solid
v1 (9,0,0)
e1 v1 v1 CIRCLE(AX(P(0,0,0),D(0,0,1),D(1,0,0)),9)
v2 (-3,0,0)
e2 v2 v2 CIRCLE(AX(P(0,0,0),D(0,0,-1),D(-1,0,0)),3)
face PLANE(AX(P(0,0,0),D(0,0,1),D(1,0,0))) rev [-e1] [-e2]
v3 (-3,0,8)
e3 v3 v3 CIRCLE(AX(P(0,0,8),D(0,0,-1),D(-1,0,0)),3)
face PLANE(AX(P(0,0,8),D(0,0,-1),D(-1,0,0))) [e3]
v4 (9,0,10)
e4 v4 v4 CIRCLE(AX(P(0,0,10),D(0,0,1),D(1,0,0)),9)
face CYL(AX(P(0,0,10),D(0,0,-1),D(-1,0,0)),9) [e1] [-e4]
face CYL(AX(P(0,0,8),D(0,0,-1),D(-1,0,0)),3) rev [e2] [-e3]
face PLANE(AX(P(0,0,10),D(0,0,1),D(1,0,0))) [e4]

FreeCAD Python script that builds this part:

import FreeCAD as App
import Part
import Sketcher
from FreeCAD import Vector
Q = App.Units.Quantity

doc = App.newDocument("Part")
body = doc.addObject("PartDesign::Body", "Body")

sketch1 = body.newObject("Sketcher::SketchObject", "Sketch")
sketch1.AttachmentSupport = (doc.getObject("XY_Plane"), [""])
sketch1.MapMode = "FlatFace"
sketch1.addGeometry(Part.Circle(Vector(0, 0, 0), Vector(0, 0, 1), 9), False)
sketch1.addConstraint([
    Sketcher.Constraint("Coincident", 0, 3, -1, 1),
    Sketcher.Constraint("Diameter", 0, Q("18 mm")),
])
pad1 = body.newObject("PartDesign::Pad", "Pad")
pad1.Profile = sketch1
pad1.Length = 10

sketch2 = body.newObject("Sketcher::SketchObject", "Sketch001")
sketch2.AttachmentSupport = (doc.getObject("XY_Plane"), [""])
sketch2.MapMode = "FlatFace"
sketch2.addGeometry(Part.Circle(Vector(0, 0, 0), Vector(0, 0, 1), 3), False)
sketch2.addConstraint([
    Sketcher.Constraint("Coincident", 0, 3, -1, 1),
    Sketcher.Constraint("Diameter", 0, Q("6 mm")),
])
pocket1 = body.newObject("PartDesign::Pocket", "Pocket")
pocket1.Profile = sketch2
pocket1.Length = 8
pocket1.Reversed = True

doc.recompute()
